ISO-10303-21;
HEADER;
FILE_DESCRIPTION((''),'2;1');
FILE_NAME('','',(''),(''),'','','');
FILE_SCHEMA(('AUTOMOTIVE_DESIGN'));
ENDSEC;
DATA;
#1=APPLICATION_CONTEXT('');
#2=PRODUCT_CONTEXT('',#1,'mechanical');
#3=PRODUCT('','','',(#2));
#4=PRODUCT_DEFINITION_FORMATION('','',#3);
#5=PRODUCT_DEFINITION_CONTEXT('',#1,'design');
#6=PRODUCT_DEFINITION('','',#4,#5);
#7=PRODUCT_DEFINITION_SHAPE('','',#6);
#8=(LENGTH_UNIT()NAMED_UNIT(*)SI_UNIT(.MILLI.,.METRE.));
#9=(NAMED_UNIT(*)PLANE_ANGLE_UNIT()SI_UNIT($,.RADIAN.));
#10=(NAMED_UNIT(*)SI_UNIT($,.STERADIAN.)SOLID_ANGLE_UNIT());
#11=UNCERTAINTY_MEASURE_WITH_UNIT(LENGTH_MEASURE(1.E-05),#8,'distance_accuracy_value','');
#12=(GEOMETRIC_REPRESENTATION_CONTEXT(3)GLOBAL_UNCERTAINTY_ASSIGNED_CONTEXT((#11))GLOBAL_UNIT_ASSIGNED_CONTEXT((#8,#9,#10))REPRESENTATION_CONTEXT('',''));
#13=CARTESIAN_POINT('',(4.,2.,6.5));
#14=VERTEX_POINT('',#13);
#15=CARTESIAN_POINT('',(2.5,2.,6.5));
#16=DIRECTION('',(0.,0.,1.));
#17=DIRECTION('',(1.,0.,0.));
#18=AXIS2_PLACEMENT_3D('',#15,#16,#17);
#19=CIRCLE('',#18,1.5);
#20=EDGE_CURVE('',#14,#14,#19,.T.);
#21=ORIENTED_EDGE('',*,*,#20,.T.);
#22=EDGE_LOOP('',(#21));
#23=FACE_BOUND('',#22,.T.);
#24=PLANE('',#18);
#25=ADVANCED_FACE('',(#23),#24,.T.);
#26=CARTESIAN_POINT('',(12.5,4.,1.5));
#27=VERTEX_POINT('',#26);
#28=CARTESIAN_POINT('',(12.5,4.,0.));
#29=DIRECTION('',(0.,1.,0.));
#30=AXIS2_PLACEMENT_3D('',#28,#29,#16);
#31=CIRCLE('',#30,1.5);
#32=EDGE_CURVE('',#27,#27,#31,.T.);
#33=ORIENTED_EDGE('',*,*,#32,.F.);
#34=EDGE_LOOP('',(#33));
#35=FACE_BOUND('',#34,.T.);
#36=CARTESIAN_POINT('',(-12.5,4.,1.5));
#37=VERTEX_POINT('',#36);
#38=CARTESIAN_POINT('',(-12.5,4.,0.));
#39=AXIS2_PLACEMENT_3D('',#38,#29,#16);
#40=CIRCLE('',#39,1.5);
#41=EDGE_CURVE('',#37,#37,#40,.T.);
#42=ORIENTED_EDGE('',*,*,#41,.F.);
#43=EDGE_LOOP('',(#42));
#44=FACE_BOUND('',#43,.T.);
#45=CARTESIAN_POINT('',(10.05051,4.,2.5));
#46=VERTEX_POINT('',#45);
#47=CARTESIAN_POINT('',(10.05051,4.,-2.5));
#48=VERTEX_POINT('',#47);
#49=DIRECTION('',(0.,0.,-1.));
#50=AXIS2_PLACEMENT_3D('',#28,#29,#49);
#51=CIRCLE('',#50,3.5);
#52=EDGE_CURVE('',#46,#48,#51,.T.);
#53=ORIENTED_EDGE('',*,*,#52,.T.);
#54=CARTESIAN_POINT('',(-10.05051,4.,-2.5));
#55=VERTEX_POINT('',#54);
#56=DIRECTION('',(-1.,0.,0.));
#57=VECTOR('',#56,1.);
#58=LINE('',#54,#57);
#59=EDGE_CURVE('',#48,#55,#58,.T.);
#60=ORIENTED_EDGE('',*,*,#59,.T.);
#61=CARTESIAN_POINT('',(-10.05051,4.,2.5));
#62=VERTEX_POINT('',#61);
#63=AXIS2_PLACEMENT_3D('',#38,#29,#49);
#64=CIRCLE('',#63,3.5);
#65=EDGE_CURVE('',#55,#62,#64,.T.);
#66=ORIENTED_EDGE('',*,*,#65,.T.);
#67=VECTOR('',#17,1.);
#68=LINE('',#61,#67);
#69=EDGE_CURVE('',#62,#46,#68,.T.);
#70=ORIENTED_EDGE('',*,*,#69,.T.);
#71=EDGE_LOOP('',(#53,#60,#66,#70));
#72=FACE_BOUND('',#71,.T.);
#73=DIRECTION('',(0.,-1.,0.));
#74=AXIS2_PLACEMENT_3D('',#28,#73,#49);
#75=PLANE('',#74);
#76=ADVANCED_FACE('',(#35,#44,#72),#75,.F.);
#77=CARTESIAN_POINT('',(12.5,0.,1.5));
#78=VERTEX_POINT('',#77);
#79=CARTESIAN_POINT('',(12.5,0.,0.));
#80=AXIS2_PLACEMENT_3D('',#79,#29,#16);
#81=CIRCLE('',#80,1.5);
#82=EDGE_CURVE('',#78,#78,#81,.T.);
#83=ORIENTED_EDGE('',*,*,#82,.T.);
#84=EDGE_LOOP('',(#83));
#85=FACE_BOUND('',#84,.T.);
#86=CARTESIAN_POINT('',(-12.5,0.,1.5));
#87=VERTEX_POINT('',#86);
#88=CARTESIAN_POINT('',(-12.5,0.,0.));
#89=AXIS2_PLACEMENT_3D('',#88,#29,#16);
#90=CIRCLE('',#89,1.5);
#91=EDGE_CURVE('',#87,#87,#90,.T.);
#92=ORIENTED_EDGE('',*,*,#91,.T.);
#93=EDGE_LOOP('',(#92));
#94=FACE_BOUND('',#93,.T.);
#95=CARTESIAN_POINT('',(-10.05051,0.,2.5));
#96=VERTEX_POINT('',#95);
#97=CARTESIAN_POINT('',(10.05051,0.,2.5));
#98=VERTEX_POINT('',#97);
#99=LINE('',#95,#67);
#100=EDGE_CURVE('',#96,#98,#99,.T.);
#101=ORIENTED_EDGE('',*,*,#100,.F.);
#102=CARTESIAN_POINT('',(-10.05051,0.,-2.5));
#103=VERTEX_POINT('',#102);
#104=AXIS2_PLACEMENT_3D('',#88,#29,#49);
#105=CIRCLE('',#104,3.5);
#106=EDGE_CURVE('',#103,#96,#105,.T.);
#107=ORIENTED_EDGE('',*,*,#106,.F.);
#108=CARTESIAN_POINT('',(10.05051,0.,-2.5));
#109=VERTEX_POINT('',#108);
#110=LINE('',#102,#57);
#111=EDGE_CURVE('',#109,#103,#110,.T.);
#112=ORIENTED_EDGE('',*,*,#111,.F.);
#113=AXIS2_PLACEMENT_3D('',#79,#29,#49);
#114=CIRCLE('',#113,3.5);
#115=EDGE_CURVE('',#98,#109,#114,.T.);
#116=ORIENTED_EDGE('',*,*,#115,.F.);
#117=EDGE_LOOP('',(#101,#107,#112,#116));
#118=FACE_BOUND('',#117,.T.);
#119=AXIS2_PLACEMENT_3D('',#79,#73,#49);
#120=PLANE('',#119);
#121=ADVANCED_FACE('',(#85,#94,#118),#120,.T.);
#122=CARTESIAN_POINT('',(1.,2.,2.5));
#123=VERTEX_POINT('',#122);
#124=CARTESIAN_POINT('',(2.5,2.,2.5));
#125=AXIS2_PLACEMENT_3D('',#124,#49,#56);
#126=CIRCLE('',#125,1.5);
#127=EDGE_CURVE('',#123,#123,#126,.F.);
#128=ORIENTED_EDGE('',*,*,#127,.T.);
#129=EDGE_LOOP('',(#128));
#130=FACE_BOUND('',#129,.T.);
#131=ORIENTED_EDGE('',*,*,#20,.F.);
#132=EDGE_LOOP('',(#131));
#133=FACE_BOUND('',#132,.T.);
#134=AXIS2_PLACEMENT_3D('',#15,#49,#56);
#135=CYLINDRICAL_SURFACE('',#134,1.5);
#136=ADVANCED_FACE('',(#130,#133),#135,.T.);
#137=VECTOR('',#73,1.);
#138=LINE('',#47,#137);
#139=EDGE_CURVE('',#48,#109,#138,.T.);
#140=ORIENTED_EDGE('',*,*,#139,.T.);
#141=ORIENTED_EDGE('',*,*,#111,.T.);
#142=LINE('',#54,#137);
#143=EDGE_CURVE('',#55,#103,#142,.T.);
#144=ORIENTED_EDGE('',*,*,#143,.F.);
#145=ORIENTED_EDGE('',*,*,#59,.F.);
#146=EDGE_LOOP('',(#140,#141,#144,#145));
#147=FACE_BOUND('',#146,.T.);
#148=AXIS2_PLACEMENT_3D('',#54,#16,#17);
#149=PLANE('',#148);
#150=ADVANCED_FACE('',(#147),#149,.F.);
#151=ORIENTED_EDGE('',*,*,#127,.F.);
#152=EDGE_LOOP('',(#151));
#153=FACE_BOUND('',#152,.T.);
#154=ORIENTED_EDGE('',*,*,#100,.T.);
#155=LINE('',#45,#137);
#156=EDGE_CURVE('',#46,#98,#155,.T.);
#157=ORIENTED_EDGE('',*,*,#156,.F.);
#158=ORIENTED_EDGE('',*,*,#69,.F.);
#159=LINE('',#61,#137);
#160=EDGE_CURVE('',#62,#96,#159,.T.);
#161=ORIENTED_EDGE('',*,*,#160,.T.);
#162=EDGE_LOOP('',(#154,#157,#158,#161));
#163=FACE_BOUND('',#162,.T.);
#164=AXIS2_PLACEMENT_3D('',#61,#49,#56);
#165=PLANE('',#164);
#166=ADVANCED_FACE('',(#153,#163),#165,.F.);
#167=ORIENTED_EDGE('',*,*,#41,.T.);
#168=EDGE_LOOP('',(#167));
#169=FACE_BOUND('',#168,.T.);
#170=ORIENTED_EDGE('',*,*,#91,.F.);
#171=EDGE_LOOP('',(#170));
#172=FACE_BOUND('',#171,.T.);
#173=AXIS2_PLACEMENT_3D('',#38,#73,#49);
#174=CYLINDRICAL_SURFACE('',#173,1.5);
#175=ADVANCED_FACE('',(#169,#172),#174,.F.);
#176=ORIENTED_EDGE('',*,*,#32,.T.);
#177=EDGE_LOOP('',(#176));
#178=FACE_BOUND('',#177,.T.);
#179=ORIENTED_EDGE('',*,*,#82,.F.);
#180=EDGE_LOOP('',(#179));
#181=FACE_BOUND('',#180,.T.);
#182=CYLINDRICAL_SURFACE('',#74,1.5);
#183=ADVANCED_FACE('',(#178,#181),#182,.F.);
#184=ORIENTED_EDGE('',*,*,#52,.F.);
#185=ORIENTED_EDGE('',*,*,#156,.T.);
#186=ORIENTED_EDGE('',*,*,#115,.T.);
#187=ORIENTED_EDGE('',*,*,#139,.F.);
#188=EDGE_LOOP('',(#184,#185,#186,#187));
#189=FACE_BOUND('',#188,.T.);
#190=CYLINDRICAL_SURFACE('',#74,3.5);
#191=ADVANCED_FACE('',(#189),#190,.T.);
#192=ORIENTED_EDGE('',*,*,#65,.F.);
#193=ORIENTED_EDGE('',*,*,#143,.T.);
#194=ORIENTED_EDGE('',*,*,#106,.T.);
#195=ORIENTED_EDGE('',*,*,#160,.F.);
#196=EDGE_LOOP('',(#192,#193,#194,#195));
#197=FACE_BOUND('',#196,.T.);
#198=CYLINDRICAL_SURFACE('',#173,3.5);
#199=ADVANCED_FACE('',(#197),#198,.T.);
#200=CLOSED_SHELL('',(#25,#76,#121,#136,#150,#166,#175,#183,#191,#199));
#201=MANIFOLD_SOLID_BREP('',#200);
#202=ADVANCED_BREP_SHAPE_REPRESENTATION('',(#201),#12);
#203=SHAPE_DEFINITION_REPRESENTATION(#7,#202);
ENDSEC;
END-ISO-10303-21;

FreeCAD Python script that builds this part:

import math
import FreeCAD as App
import Part
import Sketcher
from FreeCAD import Vector
Q = App.Units.Quantity

doc = App.newDocument("Part")
params = doc.addObject("Spreadsheet::Sheet", "Params")
for row, (alias, value) in enumerate([
    ("sketch1_diameter", "3 mm"),
    ("sketch1_radius", "3.5 mm"),
    ("pad1_length", "4 mm"),
    ("sketch2_diameter", "3 mm"),
    ("pad2_length", "4 mm"),
], start=1):
    params.set(f"A{row}", alias)
    params.set(f"B{row}", "=" + value)
    params.setAlias(f"B{row}", alias)

body = doc.addObject("PartDesign::Body", "Body")

sketch1 = doc.addObject("Sketcher::SketchObject", "Sketch")
body.addObject(sketch1)
sketch1.AttachmentSupport = (doc.XZ_Plane, [""])
sketch1.MapMode = "FlatFace"
sketch1.addGeometry(Part.LineSegment(Vector(-10.05051, 2.5, 0), Vector(10.05051, 2.5, 0)), False)
sketch1.addGeometry(Part.ArcOfCircle(Part.Circle(Vector(12.5, 0, 0), Vector(0, 0, 1), 3.5), math.radians(-134.415309), math.radians(134.415309)), False)
sketch1.addGeometry(Part.LineSegment(Vector(10.05051, -2.5, 0), Vector(-10.05051, -2.5, 0)), False)
sketch1.addGeometry(Part.ArcOfCircle(Part.Circle(Vector(-12.5, 0, 0), Vector(0, 0, 1), 3.5), math.radians(45.584691), math.radians(314.415309)), False)
sketch1.addGeometry(Part.Circle(Vector(-12.5, 0, 0), Vector(0, 0, 1), 1.5), False)
sketch1.addGeometry(Part.Circle(Vector(12.5, 0, 0), Vector(0, 0, 1), 1.5), False)
sketch1.addConstraint(Sketcher.Constraint("Coincident", 0, 2, 1, 2))
sketch1.addConstraint(Sketcher.Constraint("Coincident", 1, 1, 2, 1))
sketch1.addConstraint(Sketcher.Constraint("Coincident", 2, 2, 3, 2))
sketch1.addConstraint(Sketcher.Constraint("Coincident", 3, 1, 0, 1))
sketch1.addConstraint(Sketcher.Constraint("Horizontal", 0))
sketch1.addConstraint(Sketcher.Constraint("Horizontal", 2))
sketch1.addConstraint(Sketcher.Constraint("Coincident", 4, 3, 3, 3))
sketch1.addConstraint(Sketcher.Constraint("Coincident", 5, 3, 1, 3))
sketch1.addConstraint(Sketcher.Constraint("Equal", 1, 3))
sketch1.addConstraint(Sketcher.Constraint("Equal", 4, 5))
sketch1.addConstraint(Sketcher.Constraint("Symmetric", 1, 3, 3, 3, -1, 1))
sketch1.addConstraint(Sketcher.Constraint("Symmetric", 0, 2, 1, 1, -1))
sketch1.addConstraint(Sketcher.Constraint("Diameter", 4, Q("3 mm")))
sketch1.addConstraint(Sketcher.Constraint("Radius", 1, Q("3.5 mm")))
sketch1.addConstraint(Sketcher.Constraint("DistanceX", 3, 3, 1, 3, Q("25 mm")))
sketch1.addConstraint(Sketcher.Constraint("DistanceY", 1, 1, 0, 2, Q("5 mm")))
sketch1.setExpression("Constraints[12]", "Params.sketch1_diameter")
sketch1.setExpression("Constraints[13]", "Params.sketch1_radius")
pad1 = doc.addObject("PartDesign::Pad", "Pad")
body.addObject(pad1)
pad1.Profile = sketch1
pad1.setExpression("Length", "Params.pad1_length")
pad1.Reversed = True

sketch2 = doc.addObject("Sketcher::SketchObject", "Sketch001")
body.addObject(sketch2)
sketch2.AttachmentSupport = (doc.XY_Plane, [""])
sketch2.MapMode = "FlatFace"
sketch2.AttachmentOffset = App.Placement(Vector(0, 0, 2.5), App.Rotation())
sketch2.addGeometry(Part.Circle(Vector(2.5, 2, 0), Vector(0, 0, 1), 1.5), False)
sketch2.addConstraint(Sketcher.Constraint("Diameter", 0, Q("3 mm")))
sketch2.addConstraint(Sketcher.Constraint("DistanceY", -1, 1, 0, 3, Q("2 mm")))
sketch2.addConstraint(Sketcher.Constraint("DistanceX", -1, 1, 0, 3, Q("2.5 mm")))
sketch2.setExpression("Constraints[0]", "Params.sketch2_diameter")
pad2 = doc.addObject("PartDesign::Pad", "Pad001")
body.addObject(pad2)
pad2.Profile = sketch2
pad2.setExpression("Length", "Params.pad2_length")

doc.recompute()
